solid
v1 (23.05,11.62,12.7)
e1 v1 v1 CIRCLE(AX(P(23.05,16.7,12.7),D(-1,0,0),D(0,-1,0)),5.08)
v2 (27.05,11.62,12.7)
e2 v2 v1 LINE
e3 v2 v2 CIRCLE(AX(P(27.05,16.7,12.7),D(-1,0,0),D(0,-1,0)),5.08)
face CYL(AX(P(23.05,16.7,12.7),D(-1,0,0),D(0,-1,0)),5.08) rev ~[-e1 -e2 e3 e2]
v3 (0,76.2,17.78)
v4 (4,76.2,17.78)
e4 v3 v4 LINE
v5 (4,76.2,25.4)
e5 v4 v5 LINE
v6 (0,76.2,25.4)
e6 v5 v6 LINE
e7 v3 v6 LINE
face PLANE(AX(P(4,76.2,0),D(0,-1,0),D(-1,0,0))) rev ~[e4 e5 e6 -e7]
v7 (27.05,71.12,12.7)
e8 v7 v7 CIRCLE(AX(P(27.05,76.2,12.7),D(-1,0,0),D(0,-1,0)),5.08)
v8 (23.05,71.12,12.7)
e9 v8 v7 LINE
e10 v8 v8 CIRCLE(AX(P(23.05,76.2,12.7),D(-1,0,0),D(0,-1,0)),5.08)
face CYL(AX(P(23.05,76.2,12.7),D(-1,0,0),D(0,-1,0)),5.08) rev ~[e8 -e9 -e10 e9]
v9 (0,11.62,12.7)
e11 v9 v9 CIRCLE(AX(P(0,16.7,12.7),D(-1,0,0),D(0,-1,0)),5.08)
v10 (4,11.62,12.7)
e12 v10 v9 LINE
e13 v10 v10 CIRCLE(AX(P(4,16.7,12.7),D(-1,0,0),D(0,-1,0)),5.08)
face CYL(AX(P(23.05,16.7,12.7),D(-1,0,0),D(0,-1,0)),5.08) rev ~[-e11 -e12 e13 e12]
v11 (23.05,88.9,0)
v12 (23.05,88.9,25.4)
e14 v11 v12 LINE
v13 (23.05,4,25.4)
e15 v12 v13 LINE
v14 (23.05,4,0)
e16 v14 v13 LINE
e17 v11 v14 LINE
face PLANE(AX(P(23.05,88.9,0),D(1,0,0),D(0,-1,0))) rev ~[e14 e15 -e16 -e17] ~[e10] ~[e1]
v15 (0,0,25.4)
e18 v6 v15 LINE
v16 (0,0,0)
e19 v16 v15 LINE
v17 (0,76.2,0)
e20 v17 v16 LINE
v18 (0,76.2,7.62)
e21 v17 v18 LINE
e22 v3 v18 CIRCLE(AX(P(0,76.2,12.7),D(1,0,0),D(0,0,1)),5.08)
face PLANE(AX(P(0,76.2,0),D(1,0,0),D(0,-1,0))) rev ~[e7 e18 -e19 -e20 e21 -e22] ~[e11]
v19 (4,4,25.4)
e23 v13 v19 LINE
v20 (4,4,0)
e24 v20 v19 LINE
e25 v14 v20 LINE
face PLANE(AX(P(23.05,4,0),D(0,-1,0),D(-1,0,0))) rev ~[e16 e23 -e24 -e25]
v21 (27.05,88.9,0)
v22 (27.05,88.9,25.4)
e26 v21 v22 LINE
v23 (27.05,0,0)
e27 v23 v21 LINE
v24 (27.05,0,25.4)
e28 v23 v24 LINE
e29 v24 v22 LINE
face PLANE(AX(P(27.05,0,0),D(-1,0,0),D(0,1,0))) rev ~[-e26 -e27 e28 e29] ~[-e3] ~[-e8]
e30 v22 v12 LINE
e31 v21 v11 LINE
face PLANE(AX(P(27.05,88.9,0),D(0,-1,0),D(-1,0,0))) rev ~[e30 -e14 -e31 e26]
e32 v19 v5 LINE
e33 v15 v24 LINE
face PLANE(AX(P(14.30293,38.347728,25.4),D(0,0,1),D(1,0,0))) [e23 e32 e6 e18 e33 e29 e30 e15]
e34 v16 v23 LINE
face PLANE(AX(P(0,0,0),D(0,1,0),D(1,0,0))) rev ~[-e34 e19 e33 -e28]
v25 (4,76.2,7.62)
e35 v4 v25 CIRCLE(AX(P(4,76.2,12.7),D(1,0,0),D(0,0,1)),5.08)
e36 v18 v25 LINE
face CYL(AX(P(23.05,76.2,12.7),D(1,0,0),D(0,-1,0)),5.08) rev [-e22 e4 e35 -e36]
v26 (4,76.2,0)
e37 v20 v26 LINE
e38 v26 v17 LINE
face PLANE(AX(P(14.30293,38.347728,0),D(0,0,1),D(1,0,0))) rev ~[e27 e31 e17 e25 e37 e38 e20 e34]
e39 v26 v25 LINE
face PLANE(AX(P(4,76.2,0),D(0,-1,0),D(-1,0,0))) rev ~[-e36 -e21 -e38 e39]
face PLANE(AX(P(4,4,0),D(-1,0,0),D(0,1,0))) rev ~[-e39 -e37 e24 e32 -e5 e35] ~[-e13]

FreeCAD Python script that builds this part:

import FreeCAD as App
import Part
import Sketcher

V = App.Vector
Q = App.Units.Quantity

doc = App.newDocument("Part")
params = doc.addObject("Spreadsheet::Sheet", "Params")
for row, (alias, value) in enumerate([
    ("sketch1_height", "3 in"),
    ("sketch1_height2", "3.5 in"),
    ("sketch1_width", "0.75 in"),
    ("pad1_length", "1 in"),
    ("sketch2_diameter", "0.4 in"),
    ("pocket1_length", "6 in"),
], start=1):
    params.set(f"A{row}", alias)
    params.set(f"B{row}", "=" + value)
    params.setAlias(f"B{row}", alias)

body = doc.addObject("PartDesign::Body", "Body")

sketch1 = body.newObject("Sketcher::SketchObject", "Sketch")
sketch1.AttachmentSupport = (doc.getObject("XY_Plane"), [""])
sketch1.MapMode = "FlatFace"
sketch1.addGeometry(Part.LineSegment(V(0, 76.2, 0), V(0, 0, 0)), False)
sketch1.addGeometry(Part.LineSegment(V(0, 0, 0), V(27.1, 0, 0)), False)
sketch1.addGeometry(Part.LineSegment(V(27.1, 0, 0), V(27.1, 88.9, 0)), False)
sketch1.addGeometry(Part.LineSegment(V(27.1, 88.9, 0), V(23.1, 88.9, 0)), False)
sketch1.addGeometry(Part.LineSegment(V(23.1, 88.9, 0), V(23.1, 4, 0)), False)
sketch1.addGeometry(Part.LineSegment(V(23.1, 4, 0), V(4, 4, 0)), False)
sketch1.addGeometry(Part.LineSegment(V(4, 4, 0), V(4, 76.2, 0)), False)
sketch1.addGeometry(Part.LineSegment(V(4, 76.2, 0), V(0, 76.2, 0)), False)
sketch1.addConstraint(Sketcher.Constraint("Coincident", 0, 2, 1, 1))
sketch1.addConstraint(Sketcher.Constraint("Coincident", 1, 2, 2, 1))
sketch1.addConstraint(Sketcher.Constraint("Coincident", 2, 2, 3, 1))
sketch1.addConstraint(Sketcher.Constraint("Coincident", 3, 2, 4, 1))
sketch1.addConstraint(Sketcher.Constraint("Coincident", 4, 2, 5, 1))
sketch1.addConstraint(Sketcher.Constraint("Coincident", 5, 2, 6, 1))
sketch1.addConstraint(Sketcher.Constraint("Coincident", 6, 2, 7, 1))
sketch1.addConstraint(Sketcher.Constraint("Coincident", 7, 2, 0, 1))
sketch1.addConstraint(Sketcher.Constraint("Vertical", 0))
sketch1.addConstraint(Sketcher.Constraint("Horizontal", 1))
sketch1.addConstraint(Sketcher.Constraint("Vertical", 2))
sketch1.addConstraint(Sketcher.Constraint("Horizontal", 3))
sketch1.addConstraint(Sketcher.Constraint("Vertical", 4))
sketch1.addConstraint(Sketcher.Constraint("Horizontal", 5))
sketch1.addConstraint(Sketcher.Constraint("Vertical", 6))
sketch1.addConstraint(Sketcher.Constraint("Horizontal", 7))
sketch1.addConstraint(Sketcher.Constraint("Coincident", 0, 2, -1, 1))
sketch1.addConstraint(Sketcher.Constraint("Equal", 3, 7))
sketch1.addConstraint(Sketcher.Constraint("DistanceY", 0, 2, 0, 1, Q("3 in")))
sketch1.addConstraint(Sketcher.Constraint("DistanceY", 2, 1, 2, 2, Q("3.5 in")))
sketch1.addConstraint(Sketcher.Constraint("DistanceX", 5, 2, 5, 1, Q("0.75 in")))
sketch1.addConstraint(Sketcher.Constraint("DistanceX", 1, 1, 1, 2, 27.05))
sketch1.addConstraint(Sketcher.Constraint("DistanceY", 4, 2, 4, 1, 84.9))
sketch1.setExpression("Constraints[18]", "Params.sketch1_height")
sketch1.setExpression("Constraints[19]", "Params.sketch1_height2")
sketch1.setExpression("Constraints[20]", "Params.sketch1_width")
pad1 = body.newObject("PartDesign::Pad", "Pad")
pad1.Profile = sketch1
pad1.setExpression("Length", "Params.pad1_length")

sketch2 = body.newObject("Sketcher::SketchObject", "Sketch001")
sketch2.AttachmentSupport = (doc.getObject("YZ_Plane"), [""])
sketch2.MapMode = "FlatFace"
sketch2.AttachmentOffset = App.Placement(V(0, 0, 23.05), App.Rotation())
sketch2.addGeometry(Part.Circle(V(76, 13, 0), V(0, 0, 1), 5), False)
sketch2.addGeometry(Part.Circle(V(17, 13, 0), V(0, 0, 1), 5), False)
sketch2.addConstraint(Sketcher.Constraint("Equal", 0, 1))
sketch2.addConstraint(Sketcher.Constraint("Horizontal", 0, 3, 1, 3))
sketch2.addConstraint(Sketcher.Constraint("Diameter", 0, Q("0.4 in")))
sketch2.addConstraint(Sketcher.Constraint("DistanceX", -1, 1, 0, 3, Q("3 in")))
sketch2.addConstraint(Sketcher.Constraint("DistanceY", -1, 1, 0, 3, Q("0.5 in")))
sketch2.addConstraint(Sketcher.Constraint("DistanceX", -1, 1, 1, 3, 16.7))
sketch2.setExpression("Constraints[2]", "Params.sketch2_diameter")
pocket1 = body.newObject("PartDesign::Pocket", "Pocket")
pocket1.Profile = sketch2
pocket1.setExpression("Length", "Params.pocket1_length")
pocket1.Midplane = True

doc.recompute()
